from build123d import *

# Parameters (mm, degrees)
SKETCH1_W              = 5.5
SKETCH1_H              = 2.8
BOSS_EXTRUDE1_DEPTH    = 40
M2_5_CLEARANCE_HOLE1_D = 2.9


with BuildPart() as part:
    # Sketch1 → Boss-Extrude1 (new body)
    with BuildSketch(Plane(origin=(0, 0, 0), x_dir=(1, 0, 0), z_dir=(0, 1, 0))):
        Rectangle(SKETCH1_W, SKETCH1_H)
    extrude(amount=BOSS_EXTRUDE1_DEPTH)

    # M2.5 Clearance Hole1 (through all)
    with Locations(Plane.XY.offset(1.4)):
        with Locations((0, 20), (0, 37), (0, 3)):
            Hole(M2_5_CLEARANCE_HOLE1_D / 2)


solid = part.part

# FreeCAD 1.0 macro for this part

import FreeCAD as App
import Part
import Sketcher

V = App.Vector


def add_polygon(sketch, points):
    """Adds a closed chain of lines whose ends are joined by coincident constraints."""
    first, n = sketch.GeometryCount, len(points)
    for a, b in zip(points, points[1:] + points[:1]):
        sketch.addGeometry(Part.LineSegment(App.Vector(*a, 0), App.Vector(*b, 0)), False)
    for i in range(n):
        sketch.addConstraint(Sketcher.Constraint("Coincident", first + i, 2, first + (i + 1) % n, 1))

doc = App.newDocument("Part")
body = doc.addObject("PartDesign::Body", "Body")

# Sketch on XZ plane
sketch1 = body.newObject("Sketcher::SketchObject", "Sketch")
sketch1.AttachmentSupport = (doc.getObject("XZ_Plane"), [""])
sketch1.MapMode = "FlatFace"
add_polygon(sketch1, [(-2.75, -1.4), (-2.75, 1.4), (2.75, 1.4), (2.75, -1.4)])  # lines 0-3
sketch1.addConstraint([
    Sketcher.Constraint("Vertical", 0),
    Sketcher.Constraint("Horizontal", 1),
    Sketcher.Constraint("Vertical", 2),
    Sketcher.Constraint("Horizontal", 3),
    Sketcher.Constraint("Symmetric", 0, 2, 2, 2, -1, 1),
    Sketcher.Constraint("DistanceX", 1, 1, 1, 2, 5.5),
    Sketcher.Constraint("DistanceY", 0, 1, 0, 2, 2.8),
])
pad1 = body.newObject("PartDesign::Pad", "Pad")
pad1.Profile = sketch1
pad1.Length = 40
pad1.Reversed = True

# Sketch on XY plane
sketch2 = body.newObject("Sketcher::SketchObject", "Sketch001")
sketch2.AttachmentSupport = (doc.getObject("XY_Plane"), [""])
sketch2.MapMode = "FlatFace"
sketch2.AttachmentOffset = App.Placement(V(0, 0, 1.4), App.Rotation())
sketch2.addGeometry([
    Part.Circle(V(0, 20, 0), V(0, 0, 1), 1.45),
    Part.Circle(V(0, 37, 0), V(0, 0, 1), 1.45),
    Part.Circle(V(0, 3, 0), V(0, 0, 1), 1.45),
], False)
sketch2.addConstraint([
    Sketcher.Constraint("Equal", 0, 1),
    Sketcher.Constraint("Equal", 1, 2),
    Sketcher.Constraint("PointOnObject", 0, 3, -2),
    Sketcher.Constraint("PointOnObject", 1, 3, -2),
    Sketcher.Constraint("PointOnObject", 2, 3, -2),
    Sketcher.Constraint("Diameter", 0, 2.9),
    Sketcher.Constraint("DistanceY", -1, 1, 0, 3, 20.0),
    Sketcher.Constraint("DistanceY", -1, 1, 1, 3, 37.0),
    Sketcher.Constraint("DistanceY", -1, 1, 2, 3, 3.0),
])
doc.recompute()
hole = body.newObject("PartDesign::Hole", "Hole")
hole.Profile = sketch2
hole.ThreadType = "None"
hole.Diameter = 2.9
hole.DepthType = "ThroughAll"

doc.recompute()
